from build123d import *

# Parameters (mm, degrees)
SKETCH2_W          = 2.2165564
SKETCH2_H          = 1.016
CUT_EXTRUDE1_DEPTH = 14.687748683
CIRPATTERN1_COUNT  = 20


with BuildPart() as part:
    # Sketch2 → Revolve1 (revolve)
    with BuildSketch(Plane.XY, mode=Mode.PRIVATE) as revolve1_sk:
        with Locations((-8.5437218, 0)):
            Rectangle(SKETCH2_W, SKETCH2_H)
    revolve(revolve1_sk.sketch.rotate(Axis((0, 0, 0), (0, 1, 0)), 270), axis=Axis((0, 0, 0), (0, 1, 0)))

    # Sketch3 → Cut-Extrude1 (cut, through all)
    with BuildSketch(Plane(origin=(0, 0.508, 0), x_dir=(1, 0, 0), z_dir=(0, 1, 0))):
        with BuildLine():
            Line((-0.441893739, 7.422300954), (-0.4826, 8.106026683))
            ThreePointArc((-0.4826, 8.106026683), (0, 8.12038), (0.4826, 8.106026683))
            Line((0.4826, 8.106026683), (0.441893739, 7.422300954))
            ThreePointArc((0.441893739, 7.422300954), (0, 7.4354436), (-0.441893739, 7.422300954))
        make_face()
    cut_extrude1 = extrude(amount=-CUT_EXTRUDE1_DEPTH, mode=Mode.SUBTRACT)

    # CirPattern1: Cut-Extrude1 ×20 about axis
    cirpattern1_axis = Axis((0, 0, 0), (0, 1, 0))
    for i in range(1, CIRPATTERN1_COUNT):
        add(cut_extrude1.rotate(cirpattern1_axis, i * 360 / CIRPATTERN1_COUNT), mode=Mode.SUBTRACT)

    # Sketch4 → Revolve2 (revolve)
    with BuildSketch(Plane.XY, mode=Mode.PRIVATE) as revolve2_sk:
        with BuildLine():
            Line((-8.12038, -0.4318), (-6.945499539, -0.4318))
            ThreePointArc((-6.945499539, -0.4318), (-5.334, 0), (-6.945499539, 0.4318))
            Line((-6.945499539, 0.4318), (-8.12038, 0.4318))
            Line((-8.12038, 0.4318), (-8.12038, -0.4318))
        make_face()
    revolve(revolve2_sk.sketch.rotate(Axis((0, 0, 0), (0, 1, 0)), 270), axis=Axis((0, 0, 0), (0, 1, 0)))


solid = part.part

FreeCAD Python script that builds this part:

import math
import FreeCAD as App
import Part
import Sketcher
from FreeCAD import Vector
Q = App.Units.Quantity


def add_polygon(sketch, points):
    """Adds a closed chain of lines whose ends are joined by coincident constraints."""
    first, n = sketch.GeometryCount, len(points)
    for a, b in zip(points, points[1:] + points[:1]):
        sketch.addGeometry(Part.LineSegment(App.Vector(*a, 0), App.Vector(*b, 0)), False)
    for i in range(n):
        sketch.addConstraint(Sketcher.Constraint("Coincident", first + i, 2, first + (i + 1) % n, 1))

doc = App.newDocument("Part")
body = doc.addObject("PartDesign::Body", "Body")

sketch1 = body.newObject("Sketcher::SketchObject", "Sketch")
sketch1.AttachmentSupport = (doc.getObject("XY_Plane"), [""])
sketch1.MapMode = "FlatFace"
add_polygon(sketch1, [(-9.7, 0.5), (-9.7, -0.5), (-7.4, -0.5), (-7.4, 0.5)])
sketch1.addConstraint([
    Sketcher.Constraint("Vertical", 0),
    Sketcher.Constraint("Horizontal", 1),
    Sketcher.Constraint("Vertical", 2),
    Sketcher.Constraint("Horizontal", 3),
    Sketcher.Constraint("DistanceY", 0, 2, 0, 1, Q("0.04 in")),
    Sketcher.Constraint("DistanceX", 0, 2, -1, 1, Q("0.38 in")),
    Sketcher.Constraint("DistanceY", 0, 2, -1, 1, Q("0.02 in")),
    Sketcher.Constraint("DistanceX", 1, 1, 1, 2, 2.216556),
])
revolution = body.newObject("PartDesign::Revolution", "Revolution")
revolution.Profile = sketch1
revolution.ReferenceAxis = (sketch1, ["V_Axis"])
revolution.Angle = 360

sketch2 = body.newObject("Sketcher::SketchObject", "Sketch001")
sketch2.AttachmentSupport = (doc.getObject("XZ_Plane"), [""])
sketch2.MapMode = "FlatFace"
sketch2.AttachmentOffset = App.Placement(Vector(0, 0, -0.02 * 25.4), App.Rotation())
sketch2.addGeometry([
    Part.LineSegment(Vector(-0.5, -8.1, 0), Vector(-0.4, -7.4, 0)),
    Part.ArcOfCircle(Part.Circle(Vector(0, 0, 0), Vector(0, 0, 1), 7.4), math.radians(-93.41), math.radians(-86.59)),
    Part.LineSegment(Vector(0.4, -7.4, 0), Vector(0.5, -8.1, 0)),
    Part.ArcOfCircle(Part.Circle(Vector(0, 0, 0), Vector(0, 0, 1), 8.1), math.radians(-93.41), math.radians(-86.59)),
], False)
sketch2.addConstraint([
    Sketcher.Constraint("Coincident", 0, 2, 1, 1),
    Sketcher.Constraint("Coincident", 1, 2, 2, 1),
    Sketcher.Constraint("Coincident", 2, 2, 3, 2),
    Sketcher.Constraint("Coincident", 3, 1, 0, 1),
    Sketcher.Constraint("Coincident", 1, 3, -1, 1),
    Sketcher.Constraint("Coincident", 3, 3, -1, 1),
    Sketcher.Constraint("Horizontal", 0, 2, 1, 2),
    Sketcher.Constraint("Horizontal", 2, 2, 3, 1),
    Sketcher.Constraint("Radius", 3, Q("0.3197 in")),
    Sketcher.Constraint("DistanceX", -1, 1, 2, 2, Q("0.019 in")),
    Sketcher.Constraint("Radius", 1, 7.435444),
    Sketcher.Constraint("DistanceY", 0, 2, -1, 1, 7.422301),
])
pocket1 = body.newObject("PartDesign::Pocket", "Pocket")
pocket1.Profile = sketch2
pocket1.Type = "ThroughAll"
pocket1.Reversed = True
doc.recompute()

polarpattern = body.newObject("PartDesign::PolarPattern", "PolarPattern")
polarpattern.Originals = [pocket1]
polarpattern.Axis = (doc.getObject("Y_Axis"), [""])
polarpattern.Angle = 360
polarpattern.Occurrences = 20
body.Tip = polarpattern

sketch3 = body.newObject("Sketcher::SketchObject", "Sketch002")
sketch3.AttachmentSupport = (doc.getObject("XY_Plane"), [""])
sketch3.MapMode = "FlatFace"
sketch3.addGeometry([
    Part.LineSegment(Vector(-8.1, -0.4, 0), Vector(-6.9, -0.4, 0)),
    Part.ArcOfCircle(Part.Circle(Vector(-6.2, 0, 0), Vector(0, 0, 1), 0.9), math.radians(-150), math.radians(150)),
    Part.LineSegment(Vector(-6.9, 0.4, 0), Vector(-8.1, 0.4, 0)),
    Part.LineSegment(Vector(-8.1, 0.4, 0), Vector(-8.1, -0.4, 0)),
], False)
sketch3.addConstraint([
    Sketcher.Constraint("Coincident", 0, 2, 1, 1),
    Sketcher.Constraint("Coincident", 1, 2, 2, 1),
    Sketcher.Constraint("Coincident", 2, 2, 3, 1),
    Sketcher.Constraint("Coincident", 3, 2, 0, 1),
    Sketcher.Constraint("Horizontal", 0),
    Sketcher.Constraint("Horizontal", 2),
    Sketcher.Constraint("Vertical", 3),
    Sketcher.Constraint("Symmetric", 0, 2, 1, 2, -1),
    Sketcher.Constraint("Radius", 1, Q("0.034 in")),
    Sketcher.Constraint("DistanceY", 3, 2, 3, 1, Q("0.034 in")),
    Sketcher.Constraint("DistanceX", 1, 3, -1, 1, Q("0.244 in")),
    Sketcher.Constraint("DistanceX", 2, 2, -1, 1, Q("0.3197 in")),
])
revolution2 = body.newObject("PartDesign::Revolution", "Revolution001")
revolution2.Profile = sketch3
revolution2.ReferenceAxis = (sketch3, ["V_Axis"])
revolution2.Angle = 360

doc.recompute()
